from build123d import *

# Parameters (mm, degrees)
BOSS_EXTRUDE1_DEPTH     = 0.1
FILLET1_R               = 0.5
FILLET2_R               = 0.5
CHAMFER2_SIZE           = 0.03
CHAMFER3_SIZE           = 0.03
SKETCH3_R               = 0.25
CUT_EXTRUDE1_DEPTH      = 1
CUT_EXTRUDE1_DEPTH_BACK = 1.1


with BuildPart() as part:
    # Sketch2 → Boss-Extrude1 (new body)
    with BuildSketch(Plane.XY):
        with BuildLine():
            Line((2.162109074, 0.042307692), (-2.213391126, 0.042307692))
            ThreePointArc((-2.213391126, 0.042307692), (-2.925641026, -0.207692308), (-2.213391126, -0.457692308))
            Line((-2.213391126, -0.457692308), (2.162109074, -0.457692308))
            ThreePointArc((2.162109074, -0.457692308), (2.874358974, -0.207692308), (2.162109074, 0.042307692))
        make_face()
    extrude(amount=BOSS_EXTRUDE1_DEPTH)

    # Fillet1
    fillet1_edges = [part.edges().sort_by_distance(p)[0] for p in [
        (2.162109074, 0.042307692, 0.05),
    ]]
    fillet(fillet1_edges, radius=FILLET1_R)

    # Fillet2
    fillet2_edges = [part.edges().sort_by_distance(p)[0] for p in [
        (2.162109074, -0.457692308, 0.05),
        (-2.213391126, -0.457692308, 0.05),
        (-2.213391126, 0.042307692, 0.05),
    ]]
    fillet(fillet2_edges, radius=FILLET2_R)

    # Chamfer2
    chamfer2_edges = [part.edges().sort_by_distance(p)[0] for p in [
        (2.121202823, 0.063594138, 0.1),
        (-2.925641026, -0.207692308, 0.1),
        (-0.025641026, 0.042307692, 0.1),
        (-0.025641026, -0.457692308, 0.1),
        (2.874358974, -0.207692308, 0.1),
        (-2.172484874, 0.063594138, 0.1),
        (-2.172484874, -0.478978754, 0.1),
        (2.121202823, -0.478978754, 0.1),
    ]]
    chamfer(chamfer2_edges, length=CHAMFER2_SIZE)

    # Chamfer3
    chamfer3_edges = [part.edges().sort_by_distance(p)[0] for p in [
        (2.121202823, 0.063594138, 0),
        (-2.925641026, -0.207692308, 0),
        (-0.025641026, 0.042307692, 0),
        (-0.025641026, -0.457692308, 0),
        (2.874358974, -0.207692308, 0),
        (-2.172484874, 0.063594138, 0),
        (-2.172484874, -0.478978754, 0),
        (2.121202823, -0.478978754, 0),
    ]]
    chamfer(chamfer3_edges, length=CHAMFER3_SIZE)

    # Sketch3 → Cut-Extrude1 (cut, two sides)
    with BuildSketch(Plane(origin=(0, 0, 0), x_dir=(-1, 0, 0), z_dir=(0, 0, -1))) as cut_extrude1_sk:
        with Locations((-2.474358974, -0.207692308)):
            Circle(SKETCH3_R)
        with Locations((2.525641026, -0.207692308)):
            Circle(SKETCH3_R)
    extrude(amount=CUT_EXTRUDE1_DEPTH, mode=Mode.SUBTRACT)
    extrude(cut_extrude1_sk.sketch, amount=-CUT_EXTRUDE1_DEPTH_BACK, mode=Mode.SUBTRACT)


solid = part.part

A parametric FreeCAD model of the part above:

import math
import FreeCAD as App
import Part
import Sketcher
from FreeCAD import Vector
Q = App.Units.Quantity


def edges_at(feature, points):
    """Names of the edges that pass closest to the given points."""
    edges = feature.Shape.Edges
    near = lambda p: min(range(len(edges)), key=lambda i: edges[i].distToShape(Part.Vertex(*p))[0])
    return sorted({f"Edge{near(p) + 1}" for p in points})

doc = App.newDocument("Part")
body = doc.addObject("PartDesign::Body", "Body")

# Sketch on XY plane
sketch1 = body.newObject("Sketcher::SketchObject", "Sketch")
sketch1.AttachmentSupport = (doc.getObject("XY_Plane"), [""])
sketch1.MapMode = "FlatFace"
sketch1.addGeometry(Part.LineSegment(Vector(2.162109, 0.042308, 0), Vector(-2.213391, 0.042308, 0)), False)
sketch1.addGeometry(Part.ArcOfCircle(Part.Circle(Vector(-2.525641, -0.207692, 0), Vector(0, 0, 1), 0.4), math.radians(38.682187), math.radians(321.317813)), False)
sketch1.addGeometry(Part.LineSegment(Vector(-2.213391, -0.457692, 0), Vector(2.162109, -0.457692, 0)), False)
sketch1.addGeometry(Part.ArcOfCircle(Part.Circle(Vector(2.474359, -0.207692, 0), Vector(0, 0, 1), 0.4), math.radians(-141.317813), math.radians(141.317813)), False)
sketch1.addConstraint(Sketcher.Constraint("Coincident", 0, 2, 1, 1))
sketch1.addConstraint(Sketcher.Constraint("Coincident", 1, 2, 2, 1))
sketch1.addConstraint(Sketcher.Constraint("Coincident", 2, 2, 3, 1))
sketch1.addConstraint(Sketcher.Constraint("Coincident", 3, 2, 0, 1))
sketch1.addConstraint(Sketcher.Constraint("Horizontal", 0))
sketch1.addConstraint(Sketcher.Constraint("Horizontal", 2))
sketch1.addConstraint(Sketcher.Constraint("Equal", 1, 3))
sketch1.addConstraint(Sketcher.Constraint("Horizontal", 1, 3, 3, 3))
sketch1.addConstraint(Sketcher.Constraint("Vertical", 0, 2, 1, 2))
sketch1.addConstraint(Sketcher.Constraint("Radius", 1, Q("0.4 mm")))
sketch1.addConstraint(Sketcher.Constraint("DistanceX", 1, 3, 3, 3, Q("5 mm")))
sketch1.addConstraint(Sketcher.Constraint("DistanceY", 1, 2, 0, 2, Q("0.5 mm")))
sketch1.addConstraint(Sketcher.Constraint("DistanceX", 1, 3, -1, 1, Q("2.525641 mm")))
sketch1.addConstraint(Sketcher.Constraint("DistanceY", 1, 3, -1, 1, Q("0.207692 mm")))
pad1 = body.newObject("PartDesign::Pad", "Pad")
pad1.Profile = sketch1
pad1.Length = 0.1
doc.recompute()

fillet = body.newObject("PartDesign::Fillet", "Fillet")
fillet.Base = (pad1, edges_at(pad1, [(2.162, 0.042, 0.05)]))
fillet.Radius = 0.5
doc.recompute()

fillet2 = body.newObject("PartDesign::Fillet", "Fillet001")
fillet2.Base = (fillet, edges_at(fillet, [(2.162, -0.458, 0.05), (-2.213, -0.458, 0.05), (-2.213, 0.042, 0.05)]))
fillet2.Radius = 0.5
doc.recompute()

chamfer = body.newObject("PartDesign::Chamfer", "Chamfer")
chamfer.Base = (fillet2, edges_at(fillet2, [
    (2.121, 0.064, 0.1),
    (-2.926, -0.208, 0.1),
    (-0.026, 0.042, 0.1),
    (-0.026, -0.458, 0.1),
    (2.874, -0.208, 0.1),
    (-2.172, 0.064, 0.1),
    (-2.172, -0.479, 0.1),
    (2.121, -0.479, 0.1),
]))
chamfer.Size = 0.03
doc.recompute()

chamfer2 = body.newObject("PartDesign::Chamfer", "Chamfer001")
chamfer2.Base = (chamfer, edges_at(chamfer, [
    (2.121, 0.064, 0),
    (-2.926, -0.208, 0),
    (-0.026, 0.042, 0),
    (-0.026, -0.458, 0),
    (2.874, -0.208, 0),
    (-2.172, 0.064, 0),
    (-2.172, -0.479, 0),
    (2.121, -0.479, 0),
]))
chamfer2.Size = 0.03

# Sketch on XY plane
sketch2 = body.newObject("Sketcher::SketchObject", "Sketch001")
sketch2.AttachmentSupport = (doc.getObject("XY_Plane"), [""])
sketch2.MapMode = "FlatFace"
sketch2.addGeometry(Part.Circle(Vector(2.474359, -0.207692, 0), Vector(0, 0, 1), 0.25), False)
sketch2.addGeometry(Part.Circle(Vector(-2.525641, -0.207692, 0), Vector(0, 0, 1), 0.25), False)
sketch2.addConstraint(Sketcher.Constraint("Equal", 0, 1))
sketch2.addConstraint(Sketcher.Constraint("Horizontal", 0, 3, 1, 3))
sketch2.addConstraint(Sketcher.Constraint("Diameter", 0, Q("0.5 mm")))
sketch2.addConstraint(Sketcher.Constraint("DistanceX", 1, 3, 0, 3, Q("5 mm")))
sketch2.addConstraint(Sketcher.Constraint("DistanceX", -1, 1, 0, 3, Q("2.474359 mm")))
sketch2.addConstraint(Sketcher.Constraint("DistanceY", 0, 3, -1, 1, Q("0.207692 mm")))
pocket1 = body.newObject("PartDesign::Pocket", "Pocket")
pocket1.Profile = sketch2
pocket1.Type = "ThroughAll"
pocket1.Midplane = True

doc.recompute()
